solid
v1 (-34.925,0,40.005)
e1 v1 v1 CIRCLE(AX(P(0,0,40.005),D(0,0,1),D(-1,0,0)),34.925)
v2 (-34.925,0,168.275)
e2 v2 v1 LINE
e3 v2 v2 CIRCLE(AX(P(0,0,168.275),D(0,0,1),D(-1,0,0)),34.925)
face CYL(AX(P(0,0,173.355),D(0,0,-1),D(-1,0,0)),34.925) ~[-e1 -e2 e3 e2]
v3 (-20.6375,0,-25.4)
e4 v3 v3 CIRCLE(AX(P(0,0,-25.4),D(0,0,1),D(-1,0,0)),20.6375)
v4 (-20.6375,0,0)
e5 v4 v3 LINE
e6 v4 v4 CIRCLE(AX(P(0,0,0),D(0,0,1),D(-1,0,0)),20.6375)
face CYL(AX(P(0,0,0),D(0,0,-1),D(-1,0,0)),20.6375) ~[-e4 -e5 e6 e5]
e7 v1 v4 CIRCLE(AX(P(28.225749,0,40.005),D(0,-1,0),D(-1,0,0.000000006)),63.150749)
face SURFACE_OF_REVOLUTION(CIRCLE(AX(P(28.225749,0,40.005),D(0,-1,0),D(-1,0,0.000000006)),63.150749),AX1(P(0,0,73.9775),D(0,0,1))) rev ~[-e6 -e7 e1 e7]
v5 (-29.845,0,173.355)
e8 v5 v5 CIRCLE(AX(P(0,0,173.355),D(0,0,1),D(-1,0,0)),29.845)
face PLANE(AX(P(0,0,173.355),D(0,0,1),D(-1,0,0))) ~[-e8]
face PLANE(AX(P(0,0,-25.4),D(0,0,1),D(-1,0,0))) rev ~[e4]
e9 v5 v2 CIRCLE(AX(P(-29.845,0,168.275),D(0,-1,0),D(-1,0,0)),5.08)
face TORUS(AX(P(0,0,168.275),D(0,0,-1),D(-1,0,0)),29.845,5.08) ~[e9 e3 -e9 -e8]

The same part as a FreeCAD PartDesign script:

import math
import FreeCAD as App
import Part
import Sketcher
from FreeCAD import Vector
Q = App.Units.Quantity


def edges_at(feature, points):
    """Names of the edges that pass closest to the given points."""
    edges = feature.Shape.Edges
    near = lambda p: min(range(len(edges)), key=lambda i: edges[i].distToShape(Part.Vertex(*p))[0])
    return sorted({f"Edge{near(p) + 1}" for p in points})

doc = App.newDocument("Part")
body = doc.addObject("PartDesign::Body", "Body")

# Sketch on XZ plane
sketch1 = body.newObject("Sketcher::SketchObject", "Sketch")
sketch1.AttachmentSupport = (doc.getObject("XZ_Plane"), [""])
sketch1.MapMode = "FlatFace"
sketch1.addGeometry([
    Part.LineSegment(Vector(0, -25, 0), Vector(0, 173, 0)),  # 0
    Part.LineSegment(Vector(0, 173, 0), Vector(-35, 173, 0)),  # 1
    Part.LineSegment(Vector(-35, 173, 0), Vector(-35, 40, 0)),  # 2
    Part.ArcOfCircle(Part.Circle(Vector(28, 40, 0), Vector(0, 0, 1), 63), math.radians(180), math.radians(219)),  # 3
    Part.LineSegment(Vector(-21, 0, 0), Vector(-21, -25, 0)),  # 4
    Part.LineSegment(Vector(-21, -25, 0), Vector(0, -25, 0)),  # 5
], False)
sketch1.addConstraint([
    Sketcher.Constraint("Coincident", 0, 2, 1, 1),
    Sketcher.Constraint("Coincident", 1, 2, 2, 1),
    Sketcher.Constraint("Tangent", 2, 2, 3, 1),
    Sketcher.Constraint("Coincident", 3, 2, 4, 1),
    Sketcher.Constraint("Coincident", 4, 2, 5, 1),
    Sketcher.Constraint("Coincident", 5, 2, 0, 1),
    Sketcher.Constraint("Vertical", 0),
    Sketcher.Constraint("Horizontal", 1),
    Sketcher.Constraint("Vertical", 2),
    Sketcher.Constraint("Vertical", 4),
    Sketcher.Constraint("Horizontal", 5),
    Sketcher.Constraint("PointOnObject", 0, 2, -2),
    Sketcher.Constraint("PointOnObject", 3, 2, -1),
    Sketcher.Constraint("DistanceY", 4, 2, 4, 1, Q("1 in")),
    Sketcher.Constraint("DistanceY", 2, 2, 2, 1, Q("5.25 in")),
    Sketcher.Constraint("DistanceX", 1, 2, 1, 1, Q("1.375 in")),
    Sketcher.Constraint("DistanceX", 5, 1, 5, 2, Q("0.8125 in")),
    Sketcher.Constraint("DistanceY", 0, 1, 0, 2, Q("7.825 in")),
])
revolution = body.newObject("PartDesign::Revolution", "Revolution")
revolution.Profile = sketch1
revolution.ReferenceAxis = (sketch1, ["V_Axis"])
revolution.Angle = 360
doc.recompute()

fillet = body.newObject("PartDesign::Fillet", "Fillet")
fillet.Base = (revolution, edges_at(revolution, [(34.925, 0, 173.355)]))
fillet.Radius = Q("0.2 in")

doc.recompute()
